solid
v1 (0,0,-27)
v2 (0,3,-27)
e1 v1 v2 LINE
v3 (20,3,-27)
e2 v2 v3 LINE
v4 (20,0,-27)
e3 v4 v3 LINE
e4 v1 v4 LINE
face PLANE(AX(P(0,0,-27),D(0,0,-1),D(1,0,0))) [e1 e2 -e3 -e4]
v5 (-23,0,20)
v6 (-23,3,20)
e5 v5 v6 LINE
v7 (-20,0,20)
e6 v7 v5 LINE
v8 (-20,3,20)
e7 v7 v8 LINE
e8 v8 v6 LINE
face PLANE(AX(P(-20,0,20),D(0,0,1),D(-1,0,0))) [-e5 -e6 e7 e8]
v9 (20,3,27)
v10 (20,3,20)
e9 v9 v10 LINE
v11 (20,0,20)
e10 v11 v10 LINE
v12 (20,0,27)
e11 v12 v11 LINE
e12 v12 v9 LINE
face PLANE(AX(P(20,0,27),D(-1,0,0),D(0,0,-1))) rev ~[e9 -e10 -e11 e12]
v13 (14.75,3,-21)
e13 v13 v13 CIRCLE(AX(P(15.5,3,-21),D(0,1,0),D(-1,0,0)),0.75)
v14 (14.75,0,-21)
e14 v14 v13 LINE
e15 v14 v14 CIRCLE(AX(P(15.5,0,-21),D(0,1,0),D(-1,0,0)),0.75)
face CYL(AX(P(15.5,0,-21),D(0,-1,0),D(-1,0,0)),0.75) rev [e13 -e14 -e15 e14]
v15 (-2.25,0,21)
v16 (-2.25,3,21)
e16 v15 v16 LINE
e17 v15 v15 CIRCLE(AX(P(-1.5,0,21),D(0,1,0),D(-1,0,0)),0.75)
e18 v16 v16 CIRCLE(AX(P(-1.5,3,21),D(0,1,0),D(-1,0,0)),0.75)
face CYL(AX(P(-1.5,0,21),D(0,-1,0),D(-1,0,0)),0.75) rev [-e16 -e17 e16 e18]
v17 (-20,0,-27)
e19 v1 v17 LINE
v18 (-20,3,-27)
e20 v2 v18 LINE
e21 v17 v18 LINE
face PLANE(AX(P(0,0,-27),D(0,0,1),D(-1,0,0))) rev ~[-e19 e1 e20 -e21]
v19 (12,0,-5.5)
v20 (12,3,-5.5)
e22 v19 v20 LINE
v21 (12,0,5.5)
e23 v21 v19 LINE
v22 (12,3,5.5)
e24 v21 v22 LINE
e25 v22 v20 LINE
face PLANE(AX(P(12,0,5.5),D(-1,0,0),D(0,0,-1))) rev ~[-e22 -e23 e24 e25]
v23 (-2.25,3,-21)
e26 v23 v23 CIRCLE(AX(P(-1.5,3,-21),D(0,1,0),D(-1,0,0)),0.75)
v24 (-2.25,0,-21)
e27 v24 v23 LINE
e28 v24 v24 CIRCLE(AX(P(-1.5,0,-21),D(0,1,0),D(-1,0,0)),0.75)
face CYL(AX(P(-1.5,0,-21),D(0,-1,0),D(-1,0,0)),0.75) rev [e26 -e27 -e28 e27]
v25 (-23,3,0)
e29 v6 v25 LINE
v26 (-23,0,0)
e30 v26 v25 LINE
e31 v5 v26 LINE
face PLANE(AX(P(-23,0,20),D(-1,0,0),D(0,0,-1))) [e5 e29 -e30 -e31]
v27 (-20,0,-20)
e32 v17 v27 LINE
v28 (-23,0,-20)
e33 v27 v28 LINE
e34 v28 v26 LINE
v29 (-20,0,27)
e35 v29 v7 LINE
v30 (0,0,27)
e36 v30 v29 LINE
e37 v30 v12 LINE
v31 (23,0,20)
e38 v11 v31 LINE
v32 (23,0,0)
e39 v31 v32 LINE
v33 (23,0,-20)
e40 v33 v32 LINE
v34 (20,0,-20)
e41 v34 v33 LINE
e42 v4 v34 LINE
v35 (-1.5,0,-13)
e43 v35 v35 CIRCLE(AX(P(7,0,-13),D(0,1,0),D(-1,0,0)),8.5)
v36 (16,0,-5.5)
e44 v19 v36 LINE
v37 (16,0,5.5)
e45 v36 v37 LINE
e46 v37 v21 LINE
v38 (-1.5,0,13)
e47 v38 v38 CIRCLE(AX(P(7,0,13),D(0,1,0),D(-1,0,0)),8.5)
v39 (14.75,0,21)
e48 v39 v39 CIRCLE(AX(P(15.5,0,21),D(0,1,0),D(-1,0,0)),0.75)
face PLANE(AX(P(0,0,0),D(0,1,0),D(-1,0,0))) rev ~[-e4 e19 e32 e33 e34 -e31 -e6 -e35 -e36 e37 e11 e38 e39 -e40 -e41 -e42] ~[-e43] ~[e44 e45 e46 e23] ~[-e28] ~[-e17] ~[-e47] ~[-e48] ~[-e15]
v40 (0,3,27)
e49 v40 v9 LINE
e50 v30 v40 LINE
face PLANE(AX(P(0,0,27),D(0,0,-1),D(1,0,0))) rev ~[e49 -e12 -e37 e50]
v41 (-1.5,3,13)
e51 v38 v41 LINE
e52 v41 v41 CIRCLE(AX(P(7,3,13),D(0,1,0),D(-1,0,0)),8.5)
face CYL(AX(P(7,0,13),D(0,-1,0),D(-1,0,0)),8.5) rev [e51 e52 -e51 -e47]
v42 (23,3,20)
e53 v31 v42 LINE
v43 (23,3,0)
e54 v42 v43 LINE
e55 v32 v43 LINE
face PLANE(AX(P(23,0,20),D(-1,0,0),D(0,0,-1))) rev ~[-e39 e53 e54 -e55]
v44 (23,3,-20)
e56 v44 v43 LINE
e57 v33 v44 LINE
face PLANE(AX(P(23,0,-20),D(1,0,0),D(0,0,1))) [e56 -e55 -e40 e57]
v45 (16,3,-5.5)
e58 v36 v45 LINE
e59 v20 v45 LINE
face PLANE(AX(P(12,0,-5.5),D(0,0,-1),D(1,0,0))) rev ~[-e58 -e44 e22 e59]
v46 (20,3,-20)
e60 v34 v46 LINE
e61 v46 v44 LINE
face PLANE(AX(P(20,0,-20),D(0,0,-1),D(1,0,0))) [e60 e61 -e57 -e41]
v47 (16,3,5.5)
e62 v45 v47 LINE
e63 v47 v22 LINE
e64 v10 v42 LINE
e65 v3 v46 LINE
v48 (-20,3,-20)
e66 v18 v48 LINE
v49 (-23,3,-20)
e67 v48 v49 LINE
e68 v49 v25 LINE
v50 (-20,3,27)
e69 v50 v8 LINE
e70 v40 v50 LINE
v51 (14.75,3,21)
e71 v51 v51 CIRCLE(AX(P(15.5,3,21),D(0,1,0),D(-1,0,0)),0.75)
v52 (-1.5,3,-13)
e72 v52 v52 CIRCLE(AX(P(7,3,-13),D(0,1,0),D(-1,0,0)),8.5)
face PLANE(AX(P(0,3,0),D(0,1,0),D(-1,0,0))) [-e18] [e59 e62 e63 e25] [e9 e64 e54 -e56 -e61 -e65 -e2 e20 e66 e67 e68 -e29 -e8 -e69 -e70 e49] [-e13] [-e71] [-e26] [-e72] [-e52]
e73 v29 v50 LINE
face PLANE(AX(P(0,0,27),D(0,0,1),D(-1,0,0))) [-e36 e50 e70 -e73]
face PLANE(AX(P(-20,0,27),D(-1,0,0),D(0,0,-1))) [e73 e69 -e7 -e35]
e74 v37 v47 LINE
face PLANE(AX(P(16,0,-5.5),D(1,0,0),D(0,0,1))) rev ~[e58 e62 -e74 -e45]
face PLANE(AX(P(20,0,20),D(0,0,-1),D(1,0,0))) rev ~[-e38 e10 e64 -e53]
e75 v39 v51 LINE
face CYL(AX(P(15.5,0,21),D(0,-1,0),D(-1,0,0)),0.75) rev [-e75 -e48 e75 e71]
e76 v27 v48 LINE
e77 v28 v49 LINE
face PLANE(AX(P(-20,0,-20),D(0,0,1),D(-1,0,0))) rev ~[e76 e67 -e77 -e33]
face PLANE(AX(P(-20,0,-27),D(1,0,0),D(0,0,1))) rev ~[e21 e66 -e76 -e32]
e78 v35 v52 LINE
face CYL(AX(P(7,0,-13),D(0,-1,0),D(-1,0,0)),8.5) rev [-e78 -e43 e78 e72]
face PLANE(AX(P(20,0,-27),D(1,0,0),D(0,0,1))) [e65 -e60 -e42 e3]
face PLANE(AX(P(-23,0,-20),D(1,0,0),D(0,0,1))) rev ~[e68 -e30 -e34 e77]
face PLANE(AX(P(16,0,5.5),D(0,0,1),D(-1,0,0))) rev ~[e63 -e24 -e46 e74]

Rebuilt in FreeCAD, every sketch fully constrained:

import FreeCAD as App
import Part
import Sketcher

V = App.Vector
Q = App.Units.Quantity

doc = App.newDocument("Part")
body = doc.addObject("PartDesign::Body", "Body")

# Sketch on XZ plane
sketch1 = body.newObject("Sketcher::SketchObject", "Sketch")
sketch1.AttachmentSupport = (doc.getObject("XZ_Plane"), [""])
sketch1.MapMode = "FlatFace"
sketch1.addGeometry(Part.LineSegment(V(-20, 27, 0), V(20, 27, 0)), False)
sketch1.addGeometry(Part.LineSegment(V(20, 27, 0), V(20, 20, 0)), False)
sketch1.addGeometry(Part.LineSegment(V(20, 20, 0), V(23, 20, 0)), False)
sketch1.addGeometry(Part.LineSegment(V(23, 20, 0), V(23, -20, 0)), False)
sketch1.addGeometry(Part.LineSegment(V(23, -20, 0), V(20, -20, 0)), False)
sketch1.addGeometry(Part.LineSegment(V(20, -20, 0), V(20, -27, 0)), False)
sketch1.addGeometry(Part.LineSegment(V(20, -27, 0), V(-20, -27, 0)), False)
sketch1.addGeometry(Part.LineSegment(V(-20, -27, 0), V(-20, -20, 0)), False)
sketch1.addGeometry(Part.LineSegment(V(-20, -20, 0), V(-23, -20, 0)), False)
sketch1.addGeometry(Part.LineSegment(V(-23, -20, 0), V(-23, 20, 0)), False)
sketch1.addGeometry(Part.LineSegment(V(-23, 20, 0), V(-20, 20, 0)), False)
sketch1.addGeometry(Part.LineSegment(V(-20, 20, 0), V(-20, 27, 0)), False)
sketch1.addGeometry(Part.Circle(V(15.5, -21, 0), V(0, 0, 1), 0.8), False)
sketch1.addGeometry(Part.Circle(V(7, -13, 0), V(0, 0, 1), 8.5), False)
sketch1.addGeometry(Part.Circle(V(-1.5, -21, 0), V(0, 0, 1), 0.8), False)
sketch1.addGeometry(Part.LineSegment(V(16, -5.5, 0), V(16, 5.5, 0)), False)
sketch1.addGeometry(Part.LineSegment(V(16, 5.5, 0), V(12, 5.5, 0)), False)
sketch1.addGeometry(Part.LineSegment(V(12, 5.5, 0), V(12, -5.5, 0)), False)
sketch1.addGeometry(Part.LineSegment(V(12, -5.5, 0), V(16, -5.5, 0)), False)
sketch1.addGeometry(Part.Circle(V(7, 13, 0), V(0, 0, 1), 8.5), False)
sketch1.addGeometry(Part.Circle(V(15.5, 21, 0), V(0, 0, 1), 0.8), False)
sketch1.addGeometry(Part.Circle(V(-1.5, 21, 0), V(0, 0, 1), 0.8), False)
sketch1.addConstraint(Sketcher.Constraint("Coincident", 0, 2, 1, 1))
sketch1.addConstraint(Sketcher.Constraint("Coincident", 1, 2, 2, 1))
sketch1.addConstraint(Sketcher.Constraint("Coincident", 2, 2, 3, 1))
sketch1.addConstraint(Sketcher.Constraint("Coincident", 3, 2, 4, 1))
sketch1.addConstraint(Sketcher.Constraint("Coincident", 4, 2, 5, 1))
sketch1.addConstraint(Sketcher.Constraint("Coincident", 5, 2, 6, 1))
sketch1.addConstraint(Sketcher.Constraint("Coincident", 6, 2, 7, 1))
sketch1.addConstraint(Sketcher.Constraint("Coincident", 7, 2, 8, 1))
sketch1.addConstraint(Sketcher.Constraint("Coincident", 8, 2, 9, 1))
sketch1.addConstraint(Sketcher.Constraint("Coincident", 9, 2, 10, 1))
sketch1.addConstraint(Sketcher.Constraint("Coincident", 10, 2, 11, 1))
sketch1.addConstraint(Sketcher.Constraint("Coincident", 11, 2, 0, 1))
sketch1.addConstraint(Sketcher.Constraint("Coincident", 15, 2, 16, 1))
sketch1.addConstraint(Sketcher.Constraint("Coincident", 16, 2, 17, 1))
sketch1.addConstraint(Sketcher.Constraint("Coincident", 17, 2, 18, 1))
sketch1.addConstraint(Sketcher.Constraint("Coincident", 18, 2, 15, 1))
sketch1.addConstraint(Sketcher.Constraint("Horizontal", 0))
sketch1.addConstraint(Sketcher.Constraint("Vertical", 1))
sketch1.addConstraint(Sketcher.Constraint("Horizontal", 2))
sketch1.addConstraint(Sketcher.Constraint("Vertical", 3))
sketch1.addConstraint(Sketcher.Constraint("Horizontal", 4))
sketch1.addConstraint(Sketcher.Constraint("Vertical", 5))
sketch1.addConstraint(Sketcher.Constraint("Horizontal", 6))
sketch1.addConstraint(Sketcher.Constraint("Vertical", 7))
sketch1.addConstraint(Sketcher.Constraint("Horizontal", 8))
sketch1.addConstraint(Sketcher.Constraint("Vertical", 9))
sketch1.addConstraint(Sketcher.Constraint("Horizontal", 10))
sketch1.addConstraint(Sketcher.Constraint("Vertical", 11))
sketch1.addConstraint(Sketcher.Constraint("Vertical", 15))
sketch1.addConstraint(Sketcher.Constraint("Horizontal", 16))
sketch1.addConstraint(Sketcher.Constraint("Vertical", 17))
sketch1.addConstraint(Sketcher.Constraint("Horizontal", 18))
sketch1.addConstraint(Sketcher.Constraint("Equal", 12, 14))
sketch1.addConstraint(Sketcher.Constraint("Equal", 13, 19))
sketch1.addConstraint(Sketcher.Constraint("Equal", 14, 20))
sketch1.addConstraint(Sketcher.Constraint("Equal", 20, 21))
sketch1.addConstraint(Sketcher.Constraint("Symmetric", 0, 2, 6, 2, -1, 1))
sketch1.addConstraint(Sketcher.Constraint("Symmetric", 2, 2, 8, 2, -1, 1))
sketch1.addConstraint(Sketcher.Constraint("Symmetric", 4, 2, 10, 2, -1, 1))
sketch1.addConstraint(Sketcher.Constraint("Symmetric", 4, 2, 7, 2, -2))
sketch1.addConstraint(Sketcher.Constraint("Symmetric", 13, 3, 19, 3, -1))
sketch1.addConstraint(Sketcher.Constraint("Symmetric", 12, 3, 20, 3, -1))
sketch1.addConstraint(Sketcher.Constraint("Symmetric", 14, 3, 21, 3, -1))
sketch1.addConstraint(Sketcher.Constraint("Horizontal", 12, 3, 14, 3))
sketch1.addConstraint(Sketcher.Constraint("Equal", 6, 3))
sketch1.addConstraint(Sketcher.Constraint("Diameter", 13, Q("17 mm")))
sketch1.addConstraint(Sketcher.Constraint("Diameter", 12, Q("1.5 mm")))
sketch1.addConstraint(Sketcher.Constraint("DistanceX", 2, 1, 2, 2, Q("3 mm")))
sketch1.addConstraint(Sketcher.Constraint("DistanceX", 16, 2, 16, 1, Q("4 mm")))
sketch1.addConstraint(Sketcher.Constraint("DistanceY", 15, 1, 15, 2, Q("11 mm")))
sketch1.addConstraint(Sketcher.Constraint("DistanceY", 13, 3, -1, 1, Q("13 mm")))
sketch1.addConstraint(Sketcher.Constraint("DistanceX", -1, 1, 0, 2, Q("20 mm")))
sketch1.addConstraint(Sketcher.Constraint("DistanceY", -1, 1, 0, 2, Q("27 mm")))
sketch1.addConstraint(Sketcher.Constraint("DistanceX", 14, 3, 12, 3, Q("17 mm")))
sketch1.addConstraint(Sketcher.Constraint("DistanceX", 19, 3, 0, 2, Q("13 mm")))
sketch1.addConstraint(Sketcher.Constraint("DistanceY", 1, 2, 20, 3, Q("1 mm")))
sketch1.addConstraint(Sketcher.Constraint("DistanceX", 15, 2, 1, 2, Q("4 mm")))
sketch1.addConstraint(Sketcher.Constraint("DistanceX", 14, 3, -1, 1, Q("1.5 mm")))
sketch1.addConstraint(Sketcher.Constraint("DistanceY", -1, 1, 15, 2, Q("5.5 mm")))
pad1 = body.newObject("PartDesign::Pad", "Pad")
pad1.Profile = sketch1
pad1.Length = 3
pad1.Reversed = True

doc.recompute()
